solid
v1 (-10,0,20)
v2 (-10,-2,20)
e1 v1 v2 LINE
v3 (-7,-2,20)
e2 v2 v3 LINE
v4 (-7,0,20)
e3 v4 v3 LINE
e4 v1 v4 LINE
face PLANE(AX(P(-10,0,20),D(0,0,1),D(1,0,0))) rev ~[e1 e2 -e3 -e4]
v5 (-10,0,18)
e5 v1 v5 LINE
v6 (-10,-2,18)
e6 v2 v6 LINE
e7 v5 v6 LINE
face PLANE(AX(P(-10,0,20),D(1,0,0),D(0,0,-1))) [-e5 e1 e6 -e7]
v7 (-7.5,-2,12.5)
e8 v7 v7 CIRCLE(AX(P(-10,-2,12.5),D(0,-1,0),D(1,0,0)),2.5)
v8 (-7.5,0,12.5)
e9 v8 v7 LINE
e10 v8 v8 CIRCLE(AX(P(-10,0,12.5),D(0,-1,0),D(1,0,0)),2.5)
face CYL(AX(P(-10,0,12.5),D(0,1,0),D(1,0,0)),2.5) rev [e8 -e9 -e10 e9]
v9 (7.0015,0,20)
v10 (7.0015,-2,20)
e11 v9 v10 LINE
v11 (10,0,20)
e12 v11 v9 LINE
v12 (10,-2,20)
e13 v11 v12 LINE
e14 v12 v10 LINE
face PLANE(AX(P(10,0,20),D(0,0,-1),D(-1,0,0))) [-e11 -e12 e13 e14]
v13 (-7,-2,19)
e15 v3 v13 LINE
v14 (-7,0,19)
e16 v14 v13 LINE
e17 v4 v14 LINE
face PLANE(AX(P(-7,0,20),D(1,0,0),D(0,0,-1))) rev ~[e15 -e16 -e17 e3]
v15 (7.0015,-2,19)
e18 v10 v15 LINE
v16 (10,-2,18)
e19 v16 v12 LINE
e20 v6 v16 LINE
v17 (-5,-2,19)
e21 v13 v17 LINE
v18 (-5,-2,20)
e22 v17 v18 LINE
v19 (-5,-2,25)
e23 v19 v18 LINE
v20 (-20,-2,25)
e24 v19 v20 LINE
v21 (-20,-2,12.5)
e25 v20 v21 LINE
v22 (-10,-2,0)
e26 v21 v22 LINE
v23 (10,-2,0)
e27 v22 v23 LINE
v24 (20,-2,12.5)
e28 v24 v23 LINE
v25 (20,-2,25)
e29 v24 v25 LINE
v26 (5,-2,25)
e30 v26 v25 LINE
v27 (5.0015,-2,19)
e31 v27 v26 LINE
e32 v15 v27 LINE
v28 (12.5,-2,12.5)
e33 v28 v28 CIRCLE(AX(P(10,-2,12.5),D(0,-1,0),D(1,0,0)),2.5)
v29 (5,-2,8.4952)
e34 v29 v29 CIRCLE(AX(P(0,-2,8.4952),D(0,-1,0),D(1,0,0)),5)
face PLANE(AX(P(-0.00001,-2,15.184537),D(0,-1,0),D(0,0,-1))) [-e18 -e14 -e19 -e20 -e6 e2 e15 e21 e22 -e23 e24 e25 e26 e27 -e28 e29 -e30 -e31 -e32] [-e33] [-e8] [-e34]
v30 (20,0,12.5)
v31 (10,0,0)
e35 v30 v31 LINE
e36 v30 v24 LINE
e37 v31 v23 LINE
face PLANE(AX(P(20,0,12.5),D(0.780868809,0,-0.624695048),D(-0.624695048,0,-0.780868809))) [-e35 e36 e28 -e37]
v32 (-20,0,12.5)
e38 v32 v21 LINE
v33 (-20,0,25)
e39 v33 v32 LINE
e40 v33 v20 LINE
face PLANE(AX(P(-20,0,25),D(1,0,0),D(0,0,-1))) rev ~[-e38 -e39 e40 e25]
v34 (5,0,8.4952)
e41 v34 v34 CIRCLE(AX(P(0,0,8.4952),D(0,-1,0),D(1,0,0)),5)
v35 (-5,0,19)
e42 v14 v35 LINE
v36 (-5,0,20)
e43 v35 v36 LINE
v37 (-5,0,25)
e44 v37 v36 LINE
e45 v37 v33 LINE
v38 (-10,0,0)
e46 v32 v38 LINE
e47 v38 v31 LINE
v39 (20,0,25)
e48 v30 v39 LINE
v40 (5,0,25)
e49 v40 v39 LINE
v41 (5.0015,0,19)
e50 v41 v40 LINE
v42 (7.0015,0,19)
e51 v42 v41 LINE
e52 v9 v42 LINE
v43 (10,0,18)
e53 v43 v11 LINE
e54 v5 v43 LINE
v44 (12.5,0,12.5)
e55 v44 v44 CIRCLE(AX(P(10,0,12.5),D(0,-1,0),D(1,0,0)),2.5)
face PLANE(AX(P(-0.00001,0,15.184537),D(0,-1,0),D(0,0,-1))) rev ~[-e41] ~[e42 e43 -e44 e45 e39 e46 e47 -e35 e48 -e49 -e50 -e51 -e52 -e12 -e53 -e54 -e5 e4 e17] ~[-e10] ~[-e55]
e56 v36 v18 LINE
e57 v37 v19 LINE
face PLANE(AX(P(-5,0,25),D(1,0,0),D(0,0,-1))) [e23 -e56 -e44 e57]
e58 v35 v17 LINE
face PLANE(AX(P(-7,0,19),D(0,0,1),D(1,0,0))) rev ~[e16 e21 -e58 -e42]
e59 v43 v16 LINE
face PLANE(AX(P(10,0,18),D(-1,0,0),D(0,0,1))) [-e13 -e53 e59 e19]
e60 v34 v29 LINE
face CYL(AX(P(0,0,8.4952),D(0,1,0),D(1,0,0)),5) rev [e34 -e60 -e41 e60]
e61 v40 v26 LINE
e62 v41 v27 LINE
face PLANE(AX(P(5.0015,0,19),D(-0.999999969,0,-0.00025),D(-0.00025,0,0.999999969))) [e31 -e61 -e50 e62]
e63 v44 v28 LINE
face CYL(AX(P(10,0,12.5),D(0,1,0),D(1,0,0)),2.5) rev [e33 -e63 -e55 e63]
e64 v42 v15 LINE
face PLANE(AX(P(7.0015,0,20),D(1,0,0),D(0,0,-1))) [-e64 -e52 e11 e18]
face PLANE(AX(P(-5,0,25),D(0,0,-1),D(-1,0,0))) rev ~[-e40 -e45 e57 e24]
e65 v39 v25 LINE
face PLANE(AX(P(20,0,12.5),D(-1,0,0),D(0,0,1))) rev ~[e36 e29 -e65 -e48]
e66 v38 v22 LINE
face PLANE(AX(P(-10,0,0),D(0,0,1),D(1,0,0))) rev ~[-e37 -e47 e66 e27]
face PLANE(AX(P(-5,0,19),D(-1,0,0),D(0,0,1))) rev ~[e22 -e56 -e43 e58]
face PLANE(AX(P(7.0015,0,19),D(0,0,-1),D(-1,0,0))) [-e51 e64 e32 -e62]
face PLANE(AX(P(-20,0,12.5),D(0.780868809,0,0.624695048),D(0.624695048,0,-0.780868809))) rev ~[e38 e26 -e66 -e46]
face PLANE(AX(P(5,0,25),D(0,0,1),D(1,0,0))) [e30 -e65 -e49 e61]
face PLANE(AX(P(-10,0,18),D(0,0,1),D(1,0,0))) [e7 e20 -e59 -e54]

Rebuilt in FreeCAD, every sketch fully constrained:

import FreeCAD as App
import Part
import Sketcher

V = App.Vector

doc = App.newDocument("Part")
params = doc.addObject("Spreadsheet::Sheet", "Params")
for row, (alias, value) in enumerate([
    ("sketch1_diameter", "10 mm"),
    ("sketch1_diameter2", "5 mm"),
    ("sketch1_width", "15 mm"),
    ("sketch1_width2", "2 mm"),
    ("sketch1_width3", "20 mm"),
    ("pad1_length", "2 mm"),
], start=1):
    params.set(f"A{row}", alias)
    params.set(f"B{row}", "=" + value)
    params.setAlias(f"B{row}", alias)

body = doc.addObject("PartDesign::Body", "Body")

# Sketch on XZ plane
sketch1 = body.newObject("Sketcher::SketchObject", "Sketch")
sketch1.AttachmentSupport = (doc.getObject("XZ_Plane"), [""])
sketch1.MapMode = "FlatFace"
sketch1.addGeometry([
    Part.LineSegment(V(10, 0, 0), V(20, 12.5, 0)),  # 0
    Part.LineSegment(V(20, 12.5, 0), V(20, 25, 0)),  # 1
    Part.LineSegment(V(20, 25, 0), V(5, 25, 0)),  # 2
    Part.LineSegment(V(5, 25, 0), V(5.0015, 19, 0)),  # 3
    Part.LineSegment(V(5.0015, 19, 0), V(7.0015, 19, 0)),  # 4
    Part.LineSegment(V(7.0015, 19, 0), V(7.0015, 20, 0)),  # 5
    Part.LineSegment(V(7.0015, 20, 0), V(10, 20, 0)),  # 6
    Part.LineSegment(V(10, 20, 0), V(10, 18, 0)),  # 7
    Part.LineSegment(V(10, 18, 0), V(-10, 18, 0)),  # 8
    Part.LineSegment(V(-10, 18, 0), V(-10, 20, 0)),  # 9
    Part.LineSegment(V(-10, 20, 0), V(-7, 20, 0)),  # 10
    Part.LineSegment(V(-7, 20, 0), V(-7, 19, 0)),  # 11
    Part.LineSegment(V(-7, 19, 0), V(-5, 19, 0)),  # 12
    Part.LineSegment(V(-5, 19, 0), V(-5, 25, 0)),  # 13
    Part.LineSegment(V(-5, 25, 0), V(-20, 25, 0)),  # 14
    Part.LineSegment(V(-20, 25, 0), V(-20, 12.5, 0)),  # 15
    Part.LineSegment(V(-20, 12.5, 0), V(-10, 0, 0)),  # 16
    Part.LineSegment(V(-10, 0, 0), V(10, 0, 0)),  # 17
    Part.Circle(V(0, 8.4952, 0), V(0, 0, 1), 5),  # 18
    Part.Circle(V(-10, 12.5, 0), V(0, 0, 1), 2.5),  # 19
    Part.Circle(V(10, 12.5, 0), V(0, 0, 1), 2.5),  # 20
], False)
sketch1.addConstraint([
    Sketcher.Constraint("Coincident", 0, 2, 1, 1),
    Sketcher.Constraint("Coincident", 1, 2, 2, 1),
    Sketcher.Constraint("Coincident", 2, 2, 3, 1),
    Sketcher.Constraint("Coincident", 3, 2, 4, 1),
    Sketcher.Constraint("Coincident", 4, 2, 5, 1),
    Sketcher.Constraint("Coincident", 5, 2, 6, 1),
    Sketcher.Constraint("Coincident", 6, 2, 7, 1),
    Sketcher.Constraint("Coincident", 7, 2, 8, 1),
    Sketcher.Constraint("Coincident", 8, 2, 9, 1),
    Sketcher.Constraint("Coincident", 9, 2, 10, 1),
    Sketcher.Constraint("Coincident", 10, 2, 11, 1),
    Sketcher.Constraint("Coincident", 11, 2, 12, 1),
    Sketcher.Constraint("Coincident", 12, 2, 13, 1),
    Sketcher.Constraint("Coincident", 13, 2, 14, 1),
    Sketcher.Constraint("Coincident", 14, 2, 15, 1),
    Sketcher.Constraint("Coincident", 15, 2, 16, 1),
    Sketcher.Constraint("Coincident", 16, 2, 17, 1),
    Sketcher.Constraint("Coincident", 17, 2, 0, 1),
    Sketcher.Constraint("Vertical", 1),
    Sketcher.Constraint("Horizontal", 2),
    Sketcher.Constraint("Horizontal", 4),
    Sketcher.Constraint("Vertical", 5),
    Sketcher.Constraint("Horizontal", 6),
    Sketcher.Constraint("Vertical", 7),
    Sketcher.Constraint("Horizontal", 8),
    Sketcher.Constraint("Vertical", 9),
    Sketcher.Constraint("Horizontal", 10),
    Sketcher.Constraint("Vertical", 11),
    Sketcher.Constraint("Horizontal", 12),
    Sketcher.Constraint("Vertical", 13),
    Sketcher.Constraint("Horizontal", 14),
    Sketcher.Constraint("Vertical", 15),
    Sketcher.Constraint("Horizontal", 17),
    Sketcher.Constraint("Equal", 19, 20),
    Sketcher.Constraint("Symmetric", 16, 2, 17, 2, -1, 1),
    Sketcher.Constraint("Symmetric", 19, 3, 20, 3, -2),
    Sketcher.Constraint("Symmetric", 6, 2, 9, 2, -2),
    Sketcher.Constraint("Symmetric", 2, 2, 13, 2, -2),
    Sketcher.Constraint("Symmetric", 0, 2, 15, 2, -2),
    Sketcher.Constraint("PointOnObject", 18, 3, -2),
    Sketcher.Constraint("Horizontal", 20, 3, 0, 2),
    Sketcher.Constraint("Horizontal", 4, 2, 11, 2),
    Sketcher.Constraint("Vertical", 20, 3, 6, 2),
    Sketcher.Constraint("Vertical", 9, 2, 16, 2),
    Sketcher.Constraint("Equal", 4, 12),
    Sketcher.Constraint("Equal", 12, 7),
    Sketcher.Constraint("Diameter", 18, 10.0),
    Sketcher.Constraint("Diameter", 19, 5.0),
    Sketcher.Constraint("DistanceX", 2, 2, 2, 1, 15.0),
    Sketcher.Constraint("DistanceX", 4, 1, 4, 2, 2.0),
    Sketcher.Constraint("DistanceX", 8, 2, 8, 1, 20.0),
    Sketcher.Constraint("DistanceX", 10, 1, 10, 2, 3.0),
    Sketcher.Constraint("DistanceY", 5, 1, 5, 2, 1.0),
    Sketcher.Constraint("DistanceY", 13, 1, 13, 2, 6.0),
    Sketcher.Constraint("DistanceY", 1, 1, 1, 2, 12.5),
    Sketcher.Constraint("DistanceY", -1, 1, 1, 2, 25.0),
    Sketcher.Constraint("DistanceX", 6, 1, 6, 2, 2.9985),
    Sketcher.Constraint("DistanceY", -1, 1, 18, 3, 8.4952),
])
sketch1.setExpression("Constraints[46]", "Params.sketch1_diameter")
sketch1.setExpression("Constraints[47]", "Params.sketch1_diameter2")
sketch1.setExpression("Constraints[48]", "Params.sketch1_width")
sketch1.setExpression("Constraints[49]", "Params.sketch1_width2")
sketch1.setExpression("Constraints[50]", "Params.sketch1_width3")
pad1 = body.newObject("PartDesign::Pad", "Pad")
pad1.Profile = sketch1
pad1.setExpression("Length", "Params.pad1_length")

doc.recompute()
